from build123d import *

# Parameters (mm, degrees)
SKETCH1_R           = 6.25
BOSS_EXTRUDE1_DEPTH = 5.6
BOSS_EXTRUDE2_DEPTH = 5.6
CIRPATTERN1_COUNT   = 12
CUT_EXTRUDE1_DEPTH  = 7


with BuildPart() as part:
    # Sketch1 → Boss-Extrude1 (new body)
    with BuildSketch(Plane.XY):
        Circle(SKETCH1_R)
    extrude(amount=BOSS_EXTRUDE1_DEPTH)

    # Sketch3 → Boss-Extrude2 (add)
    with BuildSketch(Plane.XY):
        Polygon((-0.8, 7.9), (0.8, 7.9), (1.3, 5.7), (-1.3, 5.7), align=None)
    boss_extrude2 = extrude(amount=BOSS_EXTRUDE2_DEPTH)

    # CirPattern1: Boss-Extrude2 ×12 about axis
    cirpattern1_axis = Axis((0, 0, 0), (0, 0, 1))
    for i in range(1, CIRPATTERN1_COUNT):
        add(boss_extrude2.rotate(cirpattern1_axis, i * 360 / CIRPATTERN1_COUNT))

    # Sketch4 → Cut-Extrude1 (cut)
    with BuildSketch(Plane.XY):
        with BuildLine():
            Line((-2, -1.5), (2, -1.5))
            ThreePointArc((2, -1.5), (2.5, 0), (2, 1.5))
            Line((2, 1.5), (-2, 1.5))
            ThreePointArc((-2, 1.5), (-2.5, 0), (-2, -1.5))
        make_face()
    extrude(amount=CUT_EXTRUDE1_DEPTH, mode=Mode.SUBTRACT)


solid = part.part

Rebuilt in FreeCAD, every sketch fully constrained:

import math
import FreeCAD as App
import Part
import Sketcher

V = App.Vector
Q = App.Units.Quantity


def add_polygon(sketch, points):
    """Adds a closed chain of lines whose ends are joined by coincident constraints."""
    first, n = sketch.GeometryCount, len(points)
    for a, b in zip(points, points[1:] + points[:1]):
        sketch.addGeometry(Part.LineSegment(App.Vector(*a, 0), App.Vector(*b, 0)), False)
    for i in range(n):
        sketch.addConstraint(Sketcher.Constraint("Coincident", first + i, 2, first + (i + 1) % n, 1))

doc = App.newDocument("Part")
body = doc.addObject("PartDesign::Body", "Body")

sketch1 = body.newObject("Sketcher::SketchObject", "Sketch")
sketch1.AttachmentSupport = (doc.getObject("XY_Plane"), [""])
sketch1.MapMode = "FlatFace"
sketch1.addGeometry(Part.Circle(V(0, 0, 0), V(0, 0, 1), 6), False)
sketch1.addConstraint(Sketcher.Constraint("Coincident", 0, 3, -1, 1))
sketch1.addConstraint(Sketcher.Constraint("Diameter", 0, Q("12.5 mm")))
pad1 = body.newObject("PartDesign::Pad", "Pad")
pad1.Profile = sketch1
pad1.Length = 5.6

sketch2 = body.newObject("Sketcher::SketchObject", "Sketch001")
sketch2.AttachmentSupport = (doc.getObject("XY_Plane"), [""])
sketch2.MapMode = "FlatFace"
add_polygon(sketch2, [(0.8, 7.9), (-0.8, 7.9), (-1.3, 5.7), (1.3, 5.7)])
sketch2.addConstraint(Sketcher.Constraint("Horizontal", 0))
sketch2.addConstraint(Sketcher.Constraint("Horizontal", 2))
sketch2.addConstraint(Sketcher.Constraint("Equal", 1, 3))
sketch2.addConstraint(Sketcher.Constraint("DistanceX", 0, 2, 0, 1, Q("1.6 mm")))
sketch2.addConstraint(Sketcher.Constraint("DistanceX", 2, 1, 2, 2, Q("2.6 mm")))
sketch2.addConstraint(Sketcher.Constraint("DistanceX", 0, 2, -1, 1, Q("0.8 mm")))
sketch2.addConstraint(Sketcher.Constraint("DistanceY", -1, 1, 0, 2, Q("7.9 mm")))
sketch2.addConstraint(Sketcher.Constraint("DistanceY", -1, 1, 1, 2, Q("5.7 mm")))
pad2 = body.newObject("PartDesign::Pad", "Pad001")
pad2.Profile = sketch2
pad2.Length = 5.6
doc.recompute()

polarpattern = body.newObject("PartDesign::PolarPattern", "PolarPattern")
polarpattern.Originals = [pad2]
polarpattern.Axis = (doc.getObject("Z_Axis"), [""])
polarpattern.Angle = 360
polarpattern.Occurrences = 12
body.Tip = polarpattern

sketch3 = body.newObject("Sketcher::SketchObject", "Sketch002")
sketch3.AttachmentSupport = (doc.getObject("XY_Plane"), [""])
sketch3.MapMode = "FlatFace"
sketch3.addGeometry(Part.LineSegment(V(-2, -1.5, 0), V(2, -1.5, 0)), False)
sketch3.addGeometry(Part.ArcOfCircle(Part.Circle(V(0, 0, 0), V(0, 0, 1), 2.5), math.radians(-37), math.radians(37)), False)
sketch3.addGeometry(Part.LineSegment(V(2, 1.5, 0), V(-2, 1.5, 0)), False)
sketch3.addGeometry(Part.ArcOfCircle(Part.Circle(V(0, 0, 0), V(0, 0, 1), 2.5), math.radians(143), math.radians(217)), False)
sketch3.addConstraint(Sketcher.Constraint("Coincident", 0, 2, 1, 1))
sketch3.addConstraint(Sketcher.Constraint("Coincident", 1, 2, 2, 1))
sketch3.addConstraint(Sketcher.Constraint("Coincident", 2, 2, 3, 1))
sketch3.addConstraint(Sketcher.Constraint("Coincident", 3, 2, 0, 1))
sketch3.addConstraint(Sketcher.Constraint("Horizontal", 0))
sketch3.addConstraint(Sketcher.Constraint("Horizontal", 2))
sketch3.addConstraint(Sketcher.Constraint("Coincident", 1, 3, -1, 1))
sketch3.addConstraint(Sketcher.Constraint("Coincident", 3, 3, -1, 1))
sketch3.addConstraint(Sketcher.Constraint("Equal", 1, 3))
sketch3.addConstraint(Sketcher.Constraint("Vertical", 0, 2, 1, 2))
sketch3.addConstraint(Sketcher.Constraint("Radius", 1, Q("2.5 mm")))
sketch3.addConstraint(Sketcher.Constraint("DistanceX", 0, 1, 0, 2, Q("4 mm")))
pocket1 = body.newObject("PartDesign::Pocket", "Pocket")
pocket1.Profile = sketch3
pocket1.Length = 7
pocket1.Reversed = True

doc.recompute()
